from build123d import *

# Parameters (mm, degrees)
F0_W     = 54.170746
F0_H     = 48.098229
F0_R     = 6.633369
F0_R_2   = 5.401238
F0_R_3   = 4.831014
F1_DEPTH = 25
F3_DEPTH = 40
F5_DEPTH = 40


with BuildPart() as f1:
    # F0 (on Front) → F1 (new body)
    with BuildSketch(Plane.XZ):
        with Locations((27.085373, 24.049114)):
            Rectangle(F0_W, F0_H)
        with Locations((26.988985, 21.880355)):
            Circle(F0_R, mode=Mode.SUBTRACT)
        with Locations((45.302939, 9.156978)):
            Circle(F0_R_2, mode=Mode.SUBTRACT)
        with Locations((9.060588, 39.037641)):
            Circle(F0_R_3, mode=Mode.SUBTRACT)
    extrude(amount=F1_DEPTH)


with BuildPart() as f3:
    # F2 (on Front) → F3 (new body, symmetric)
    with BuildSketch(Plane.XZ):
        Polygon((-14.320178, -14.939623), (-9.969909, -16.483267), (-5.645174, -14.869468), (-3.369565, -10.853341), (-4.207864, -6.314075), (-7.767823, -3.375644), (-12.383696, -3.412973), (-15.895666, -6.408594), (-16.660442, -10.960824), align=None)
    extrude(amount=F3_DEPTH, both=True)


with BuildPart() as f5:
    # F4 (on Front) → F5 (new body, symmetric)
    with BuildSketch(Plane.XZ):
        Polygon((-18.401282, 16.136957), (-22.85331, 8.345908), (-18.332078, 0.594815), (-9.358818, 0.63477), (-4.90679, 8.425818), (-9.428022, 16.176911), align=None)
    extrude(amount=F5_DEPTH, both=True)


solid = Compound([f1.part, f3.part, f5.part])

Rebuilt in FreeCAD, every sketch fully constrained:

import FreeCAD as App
import Part
import Sketcher

V = App.Vector
Q = App.Units.Quantity

doc = App.newDocument("Part")
body = doc.addObject("PartDesign::Body", "Body")

# Sketch on XZ plane
sketch1 = body.newObject("Sketcher::SketchObject", "Sketch")
sketch1.AttachmentSupport = (doc.getObject("XZ_Plane"), [""])
sketch1.MapMode = "FlatFace"
sketch1.addGeometry(Part.LineSegment(V(0, 48.1, 0), V(0, 0, 0)), False)
sketch1.addGeometry(Part.LineSegment(V(0, 0, 0), V(54.2, 0, 0)), False)
sketch1.addGeometry(Part.LineSegment(V(54.2, 0, 0), V(54.2, 48.1, 0)), False)
sketch1.addGeometry(Part.LineSegment(V(54.2, 48.1, 0), V(0, 48.1, 0)), False)
sketch1.addGeometry(Part.Circle(V(27, 21.9, 0), V(0, 0, 1), 6.6), False)
sketch1.addGeometry(Part.Circle(V(45.3, 9.2, 0), V(0, 0, 1), 5.4), False)
sketch1.addGeometry(Part.Circle(V(9.1, 39, 0), V(0, 0, 1), 4.8), False)
sketch1.addConstraint(Sketcher.Constraint("Coincident", 0, 2, 1, 1))
sketch1.addConstraint(Sketcher.Constraint("Coincident", 1, 2, 2, 1))
sketch1.addConstraint(Sketcher.Constraint("Coincident", 2, 2, 3, 1))
sketch1.addConstraint(Sketcher.Constraint("Coincident", 3, 2, 0, 1))
sketch1.addConstraint(Sketcher.Constraint("Vertical", 0))
sketch1.addConstraint(Sketcher.Constraint("Horizontal", 1))
sketch1.addConstraint(Sketcher.Constraint("Vertical", 2))
sketch1.addConstraint(Sketcher.Constraint("Horizontal", 3))
sketch1.addConstraint(Sketcher.Constraint("Coincident", 0, 2, -1, 1))
sketch1.addConstraint(Sketcher.Constraint("Diameter", 4, Q("13.266738 mm")))
sketch1.addConstraint(Sketcher.Constraint("Diameter", 5, Q("10.802476 mm")))
sketch1.addConstraint(Sketcher.Constraint("Diameter", 6, Q("9.662028 mm")))
sketch1.addConstraint(Sketcher.Constraint("DistanceY", 0, 2, 0, 1, Q("48.098229 mm")))
sketch1.addConstraint(Sketcher.Constraint("DistanceX", 1, 1, 1, 2, Q("54.170746 mm")))
sketch1.addConstraint(Sketcher.Constraint("DistanceX", -1, 1, 5, 3, Q("45.302939 mm")))
sketch1.addConstraint(Sketcher.Constraint("DistanceY", -1, 1, 6, 3, Q("39.037641 mm")))
sketch1.addConstraint(Sketcher.Constraint("DistanceX", 6, 3, 5, 3, Q("36.242351 mm")))
sketch1.addConstraint(Sketcher.Constraint("DistanceY", 0, 2, 5, 3, Q("9.156979 mm")))
sketch1.addConstraint(Sketcher.Constraint("DistanceX", 4, 3, 1, 2, Q("27.181761 mm")))
sketch1.addConstraint(Sketcher.Constraint("DistanceY", -1, 1, 4, 3, Q("21.880355 mm")))
pad1 = body.newObject("PartDesign::Pad", "Pad")
pad1.Profile = sketch1
pad1.Length = 25
body2 = doc.addObject("PartDesign::Body", "Body001")

# Sketch on XZ plane
sketch2 = body2.newObject("Sketcher::SketchObject", "Sketch001")
sketch2.AttachmentSupport = (doc.getObject("XZ_Plane001"), [""])
sketch2.MapMode = "FlatFace"
sketch2.addGeometry(Part.LineSegment(V(-14.3, -14.9, 0), V(-10, -16.5, 0)), False)
sketch2.addGeometry(Part.LineSegment(V(-10, -16.5, 0), V(-5.6, -14.9, 0)), False)
sketch2.addGeometry(Part.LineSegment(V(-5.6, -14.9, 0), V(-3.4, -10.9, 0)), False)
sketch2.addGeometry(Part.LineSegment(V(-3.4, -10.9, 0), V(-4.2, -6.3, 0)), False)
sketch2.addGeometry(Part.LineSegment(V(-4.2, -6.3, 0), V(-7.8, -3.4, 0)), False)
sketch2.addGeometry(Part.LineSegment(V(-7.8, -3.4, 0), V(-12.4, -3.4, 0)), False)
sketch2.addGeometry(Part.LineSegment(V(-12.4, -3.4, 0), V(-15.9, -6.4, 0)), False)
sketch2.addGeometry(Part.LineSegment(V(-15.9, -6.4, 0), V(-16.7, -11, 0)), False)
sketch2.addGeometry(Part.LineSegment(V(-16.7, -11, 0), V(-14.3, -14.9, 0)), False)
sketch2.addConstraint(Sketcher.Constraint("Coincident", 0, 2, 1, 1))
sketch2.addConstraint(Sketcher.Constraint("Coincident", 1, 2, 2, 1))
sketch2.addConstraint(Sketcher.Constraint("Coincident", 2, 2, 3, 1))
sketch2.addConstraint(Sketcher.Constraint("Coincident", 3, 2, 4, 1))
sketch2.addConstraint(Sketcher.Constraint("Coincident", 4, 2, 5, 1))
sketch2.addConstraint(Sketcher.Constraint("Coincident", 5, 2, 6, 1))
sketch2.addConstraint(Sketcher.Constraint("Coincident", 6, 2, 7, 1))
sketch2.addConstraint(Sketcher.Constraint("Coincident", 7, 2, 8, 1))
sketch2.addConstraint(Sketcher.Constraint("Coincident", 8, 2, 0, 1))
sketch2.addConstraint(Sketcher.Constraint("Equal", 0, 1))
sketch2.addConstraint(Sketcher.Constraint("Equal", 1, 2))
sketch2.addConstraint(Sketcher.Constraint("Equal", 2, 3))
sketch2.addConstraint(Sketcher.Constraint("Equal", 3, 4))
sketch2.addConstraint(Sketcher.Constraint("Equal", 4, 5))
sketch2.addConstraint(Sketcher.Constraint("Equal", 5, 6))
sketch2.addConstraint(Sketcher.Constraint("Equal", 6, 7))
sketch2.addConstraint(Sketcher.Constraint("Equal", 7, 8))
sketch2.addConstraint(Sketcher.Constraint("DistanceY", 0, 2, 1, 2, Q("1.613799 mm")))
sketch2.addConstraint(Sketcher.Constraint("DistanceX", 3, 2, 2, 2, Q("0.838299 mm")))
sketch2.addConstraint(Sketcher.Constraint("DistanceY", 3, 2, 5, 2, Q("2.901102 mm")))
sketch2.addConstraint(Sketcher.Constraint("DistanceY", 8, 2, 7, 2, Q("3.978799 mm")))
sketch2.addConstraint(Sketcher.Constraint("DistanceX", 0, 2, -1, 1, Q("9.969909 mm")))
sketch2.addConstraint(Sketcher.Constraint("DistanceY", 2, 2, -1, 1, Q("10.853341 mm")))
sketch2.addConstraint(Sketcher.Constraint("DistanceX", 7, 2, -1, 1, Q("16.660442 mm")))
sketch2.addConstraint(Sketcher.Constraint("DistanceX", 1, 2, 2, 2, Q("2.275609 mm")))
sketch2.addConstraint(Sketcher.Constraint("DistanceX", 4, 2, 3, 2, Q("3.559959 mm")))
sketch2.addConstraint(Sketcher.Constraint("DistanceY", 3, 2, 4, 2, Q("2.938431 mm")))
pad2 = body2.newObject("PartDesign::Pad", "Pad001")
pad2.Profile = sketch2
pad2.Length = 80
pad2.Midplane = True
body3 = doc.addObject("PartDesign::Body", "Body002")

# Sketch on XZ plane
sketch3 = body3.newObject("Sketcher::SketchObject", "Sketch002")
sketch3.AttachmentSupport = (doc.getObject("XZ_Plane002"), [""])
sketch3.MapMode = "FlatFace"
sketch3.addGeometry(Part.LineSegment(V(-18.401282, 16.136957, 0), V(-22.85331, 8.345908, 0)), False)
sketch3.addGeometry(Part.LineSegment(V(-22.85331, 8.345908, 0), V(-18.332078, 0.594815, 0)), False)
sketch3.addGeometry(Part.LineSegment(V(-18.332078, 0.594815, 0), V(-9.358818, 0.63477, 0)), False)
sketch3.addGeometry(Part.LineSegment(V(-9.358818, 0.63477, 0), V(-4.90679, 8.425818, 0)), False)
sketch3.addGeometry(Part.LineSegment(V(-4.90679, 8.425818, 0), V(-9.428022, 16.176911, 0)), False)
sketch3.addGeometry(Part.LineSegment(V(-9.428022, 16.176911, 0), V(-18.401282, 16.136957, 0)), False)
sketch3.addConstraint(Sketcher.Constraint("Coincident", 0, 2, 1, 1))
sketch3.addConstraint(Sketcher.Constraint("Coincident", 1, 2, 2, 1))
sketch3.addConstraint(Sketcher.Constraint("Coincident", 2, 2, 3, 1))
sketch3.addConstraint(Sketcher.Constraint("Coincident", 3, 2, 4, 1))
sketch3.addConstraint(Sketcher.Constraint("Coincident", 4, 2, 5, 1))
sketch3.addConstraint(Sketcher.Constraint("Coincident", 5, 2, 0, 1))
sketch3.addConstraint(Sketcher.Constraint("Distance", 0, Q("8.973349 mm")))
sketch3.addConstraint(Sketcher.Constraint("Distance", 1, Q("8.973348 mm")))
sketch3.addConstraint(Sketcher.Constraint("Distance", 2, Q("8.973349 mm")))
sketch3.addConstraint(Sketcher.Constraint("Distance", 3, Q("8.973348 mm")))
sketch3.addConstraint(Sketcher.Constraint("Distance", 4, Q("8.973348 mm")))
sketch3.addConstraint(Sketcher.Constraint("Distance", 5, Q("8.973349 mm")))
sketch3.addConstraint(Sketcher.Constraint("DistanceX", 0, 2, -1, 1, Q("22.85331 mm")))
sketch3.addConstraint(Sketcher.Constraint("DistanceY", -1, 1, 2, 2, Q("0.63477 mm")))
sketch3.addConstraint(Sketcher.Constraint("DistanceX", 3, 2, -1, 1, Q("4.90679 mm")))
sketch3.addConstraint(Sketcher.Constraint("DistanceY", -1, 1, 4, 2, Q("16.176911 mm")))
sketch3.addConstraint(Sketcher.Constraint("DistanceX", 5, 2, -1, 1, Q("18.401282 mm")))
sketch3.addConstraint(Sketcher.Constraint("DistanceY", 0, 2, 3, 2, Q("0.07991 mm")))
pad3 = body3.newObject("PartDesign::Pad", "Pad002")
pad3.Profile = sketch3
pad3.Length = 80
pad3.Midplane = True

doc.recompute()
